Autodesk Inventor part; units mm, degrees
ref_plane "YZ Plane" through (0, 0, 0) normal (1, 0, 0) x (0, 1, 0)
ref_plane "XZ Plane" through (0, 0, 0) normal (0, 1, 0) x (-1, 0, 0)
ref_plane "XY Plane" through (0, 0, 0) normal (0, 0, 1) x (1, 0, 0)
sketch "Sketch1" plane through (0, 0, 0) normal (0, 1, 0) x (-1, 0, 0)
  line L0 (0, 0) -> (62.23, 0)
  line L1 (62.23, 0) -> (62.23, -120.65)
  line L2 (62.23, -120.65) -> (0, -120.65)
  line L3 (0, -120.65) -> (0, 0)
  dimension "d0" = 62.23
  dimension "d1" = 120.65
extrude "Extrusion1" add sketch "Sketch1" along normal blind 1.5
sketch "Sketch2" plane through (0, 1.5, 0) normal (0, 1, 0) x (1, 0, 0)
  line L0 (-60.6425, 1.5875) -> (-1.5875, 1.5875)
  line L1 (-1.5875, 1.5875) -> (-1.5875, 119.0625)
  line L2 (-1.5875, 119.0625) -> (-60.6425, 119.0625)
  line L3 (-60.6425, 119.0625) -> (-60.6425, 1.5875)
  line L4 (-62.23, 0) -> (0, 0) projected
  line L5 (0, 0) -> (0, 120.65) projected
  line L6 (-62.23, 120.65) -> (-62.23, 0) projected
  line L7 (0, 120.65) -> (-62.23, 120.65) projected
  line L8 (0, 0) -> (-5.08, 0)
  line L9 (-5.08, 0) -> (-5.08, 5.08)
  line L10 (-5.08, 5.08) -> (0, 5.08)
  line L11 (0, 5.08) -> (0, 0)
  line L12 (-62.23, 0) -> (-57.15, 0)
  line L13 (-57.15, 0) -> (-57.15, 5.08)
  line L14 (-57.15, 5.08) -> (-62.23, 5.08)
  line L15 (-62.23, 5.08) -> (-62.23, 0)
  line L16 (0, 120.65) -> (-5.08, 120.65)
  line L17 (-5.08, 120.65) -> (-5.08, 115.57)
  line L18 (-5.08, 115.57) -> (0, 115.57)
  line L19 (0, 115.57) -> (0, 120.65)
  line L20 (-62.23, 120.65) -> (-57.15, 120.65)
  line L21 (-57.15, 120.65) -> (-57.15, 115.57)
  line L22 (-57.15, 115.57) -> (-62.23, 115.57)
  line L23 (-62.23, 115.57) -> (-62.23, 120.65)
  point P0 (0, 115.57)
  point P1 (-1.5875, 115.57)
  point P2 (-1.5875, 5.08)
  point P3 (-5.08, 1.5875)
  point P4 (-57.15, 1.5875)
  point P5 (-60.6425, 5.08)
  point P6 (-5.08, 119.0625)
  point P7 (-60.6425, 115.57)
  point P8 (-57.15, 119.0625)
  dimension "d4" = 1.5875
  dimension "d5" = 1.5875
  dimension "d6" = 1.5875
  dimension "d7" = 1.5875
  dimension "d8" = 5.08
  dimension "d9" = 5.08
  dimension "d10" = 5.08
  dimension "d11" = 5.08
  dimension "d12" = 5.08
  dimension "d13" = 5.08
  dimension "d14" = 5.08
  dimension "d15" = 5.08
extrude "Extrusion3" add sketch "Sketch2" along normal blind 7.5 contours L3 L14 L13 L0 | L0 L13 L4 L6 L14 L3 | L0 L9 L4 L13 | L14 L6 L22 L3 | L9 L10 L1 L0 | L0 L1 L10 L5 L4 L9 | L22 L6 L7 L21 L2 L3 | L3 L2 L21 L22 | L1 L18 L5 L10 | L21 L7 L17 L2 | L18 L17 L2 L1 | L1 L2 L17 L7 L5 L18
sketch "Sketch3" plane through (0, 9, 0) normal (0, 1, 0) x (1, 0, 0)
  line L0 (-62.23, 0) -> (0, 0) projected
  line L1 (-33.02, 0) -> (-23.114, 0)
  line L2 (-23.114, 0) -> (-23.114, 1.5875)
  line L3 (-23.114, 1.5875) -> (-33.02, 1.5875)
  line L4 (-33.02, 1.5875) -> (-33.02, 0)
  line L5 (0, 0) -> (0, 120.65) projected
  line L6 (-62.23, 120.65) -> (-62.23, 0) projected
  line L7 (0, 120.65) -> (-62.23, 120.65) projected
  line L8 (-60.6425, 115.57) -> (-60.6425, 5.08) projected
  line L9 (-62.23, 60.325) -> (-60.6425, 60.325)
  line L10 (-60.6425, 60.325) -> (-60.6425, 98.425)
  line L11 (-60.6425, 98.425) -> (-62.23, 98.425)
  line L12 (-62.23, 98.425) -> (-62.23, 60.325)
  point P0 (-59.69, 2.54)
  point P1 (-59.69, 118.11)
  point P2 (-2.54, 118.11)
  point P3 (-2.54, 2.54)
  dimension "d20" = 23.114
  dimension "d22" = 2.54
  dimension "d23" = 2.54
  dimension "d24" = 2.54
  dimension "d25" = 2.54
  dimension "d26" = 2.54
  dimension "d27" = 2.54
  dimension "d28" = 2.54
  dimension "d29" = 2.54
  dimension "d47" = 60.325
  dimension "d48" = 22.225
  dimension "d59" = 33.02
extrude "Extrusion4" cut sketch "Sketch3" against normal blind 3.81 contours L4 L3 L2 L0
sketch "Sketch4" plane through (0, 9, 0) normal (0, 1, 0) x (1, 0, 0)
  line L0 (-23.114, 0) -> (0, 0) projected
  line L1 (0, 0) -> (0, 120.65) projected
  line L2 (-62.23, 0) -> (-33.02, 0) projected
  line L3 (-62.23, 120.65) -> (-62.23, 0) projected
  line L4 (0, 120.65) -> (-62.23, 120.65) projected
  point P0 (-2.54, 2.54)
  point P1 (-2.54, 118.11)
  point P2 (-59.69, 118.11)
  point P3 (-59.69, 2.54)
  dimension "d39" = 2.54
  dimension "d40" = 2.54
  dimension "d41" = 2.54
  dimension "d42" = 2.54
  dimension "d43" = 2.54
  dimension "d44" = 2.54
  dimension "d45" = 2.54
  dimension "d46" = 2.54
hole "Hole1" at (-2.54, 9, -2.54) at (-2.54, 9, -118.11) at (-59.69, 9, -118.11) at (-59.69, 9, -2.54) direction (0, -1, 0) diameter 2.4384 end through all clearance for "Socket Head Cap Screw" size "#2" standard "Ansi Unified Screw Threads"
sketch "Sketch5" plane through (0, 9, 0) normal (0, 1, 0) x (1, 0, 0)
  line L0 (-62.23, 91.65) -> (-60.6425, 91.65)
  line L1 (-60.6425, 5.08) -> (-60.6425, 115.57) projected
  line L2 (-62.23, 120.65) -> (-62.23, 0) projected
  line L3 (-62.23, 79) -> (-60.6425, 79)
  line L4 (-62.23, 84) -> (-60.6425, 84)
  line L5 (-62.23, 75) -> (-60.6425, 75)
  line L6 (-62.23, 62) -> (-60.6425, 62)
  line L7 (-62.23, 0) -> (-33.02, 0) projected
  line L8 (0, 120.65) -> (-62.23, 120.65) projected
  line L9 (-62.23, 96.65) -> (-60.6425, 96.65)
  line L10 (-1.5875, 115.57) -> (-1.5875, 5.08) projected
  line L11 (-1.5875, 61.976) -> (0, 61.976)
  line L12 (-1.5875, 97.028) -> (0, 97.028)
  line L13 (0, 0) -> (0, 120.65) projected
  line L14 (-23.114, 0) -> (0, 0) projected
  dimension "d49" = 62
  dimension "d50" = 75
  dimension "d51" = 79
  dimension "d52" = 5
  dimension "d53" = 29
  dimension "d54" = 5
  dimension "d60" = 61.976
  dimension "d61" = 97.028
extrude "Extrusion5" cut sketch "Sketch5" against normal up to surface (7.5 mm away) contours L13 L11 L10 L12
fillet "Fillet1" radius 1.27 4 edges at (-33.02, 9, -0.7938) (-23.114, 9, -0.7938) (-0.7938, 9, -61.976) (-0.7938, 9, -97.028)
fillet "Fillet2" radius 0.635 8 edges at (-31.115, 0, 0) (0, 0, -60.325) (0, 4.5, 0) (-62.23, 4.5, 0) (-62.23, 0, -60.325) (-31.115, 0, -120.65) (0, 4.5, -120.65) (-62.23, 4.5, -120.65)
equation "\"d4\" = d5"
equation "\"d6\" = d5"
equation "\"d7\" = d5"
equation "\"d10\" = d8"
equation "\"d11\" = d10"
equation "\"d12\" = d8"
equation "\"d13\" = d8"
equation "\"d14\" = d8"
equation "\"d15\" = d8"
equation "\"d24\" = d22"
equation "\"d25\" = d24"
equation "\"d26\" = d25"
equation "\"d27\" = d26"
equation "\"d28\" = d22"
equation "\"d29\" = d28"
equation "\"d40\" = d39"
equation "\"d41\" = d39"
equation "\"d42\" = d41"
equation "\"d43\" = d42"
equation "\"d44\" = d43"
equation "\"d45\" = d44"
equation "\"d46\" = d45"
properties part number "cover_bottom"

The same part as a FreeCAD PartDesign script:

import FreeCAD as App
import Part
import Sketcher
Q = App.Units.Quantity


def edges_at(feature, points):
    """Names of the edges that pass closest to the given points."""
    edges = feature.Shape.Edges
    near = lambda p: min(range(len(edges)), key=lambda i: edges[i].distToShape(Part.Vertex(*p))[0])
    return sorted({f"Edge{near(p) + 1}" for p in points})

doc = App.newDocument("Part")
body = doc.addObject("PartDesign::Body", "Body")

sketch1 = body.newObject("Sketcher::SketchObject", "Sketch")
sketch1.AttachmentSupport = (doc.getObject("XZ_Plane"), [""])
sketch1.MapMode = "FlatFace"
sketch1.addGeometry([
    Part.LineSegment(App.Vector(-62.23, 0, 0), App.Vector(0, 0, 0)),
    Part.LineSegment(App.Vector(0, 0, 0), App.Vector(0, -120.65, 0)),
    Part.LineSegment(App.Vector(0, -120.65, 0), App.Vector(-62.23, -120.65, 0)),
    Part.LineSegment(App.Vector(-62.23, -120.65, 0), App.Vector(-62.23, 0, 0)),
], False)
sketch1.addConstraint([
    Sketcher.Constraint("Coincident", 0, 2, 1, 1),
    Sketcher.Constraint("Coincident", 1, 2, 2, 1),
    Sketcher.Constraint("Coincident", 2, 2, 3, 1),
    Sketcher.Constraint("Coincident", 3, 2, 0, 1),
    Sketcher.Constraint("Horizontal", 0),
    Sketcher.Constraint("Vertical", 1),
    Sketcher.Constraint("Horizontal", 2),
    Sketcher.Constraint("Vertical", 3),
    Sketcher.Constraint("Coincident", 0, 2, -1, 1),
    Sketcher.Constraint("DistanceX", 0, 1, 0, 2, Q("2.45 in")),
    Sketcher.Constraint("DistanceY", 1, 2, 1, 1, Q("4.75 in")),
])
pad1 = body.newObject("PartDesign::Pad", "Pad")
pad1.Profile = sketch1
pad1.Length = 1.5
pad1.Reversed = True

sketch2 = body.newObject("Sketcher::SketchObject", "Sketch001")
sketch2.AttachmentSupport = (doc.getObject("XZ_Plane"), [""])
sketch2.MapMode = "FlatFace"
sketch2.AttachmentOffset = App.Placement(App.Vector(0, 0, -1.5), App.Rotation())
sketch2.addGeometry([
    Part.LineSegment(App.Vector(-62.23, 0, 0), App.Vector(0, 0, 0)),
    Part.LineSegment(App.Vector(0, 0, 0), App.Vector(0, -120.65, 0)),
    Part.LineSegment(App.Vector(0, -120.65, 0), App.Vector(-62.23, -120.65, 0)),
    Part.LineSegment(App.Vector(-62.23, -120.65, 0), App.Vector(-62.23, 0, 0)),
    Part.LineSegment(App.Vector(-57.15, -5.08, 0), App.Vector(-60.6425, -5.08, 0)),
    Part.LineSegment(App.Vector(-60.6425, -5.08, 0), App.Vector(-60.6425, -115.57, 0)),
    Part.LineSegment(App.Vector(-60.6425, -115.57, 0), App.Vector(-57.15, -115.57, 0)),
    Part.LineSegment(App.Vector(-57.15, -115.57, 0), App.Vector(-57.15, -119.0625, 0)),
    Part.LineSegment(App.Vector(-57.15, -119.0625, 0), App.Vector(-5.08, -119.0625, 0)),
    Part.LineSegment(App.Vector(-5.08, -119.0625, 0), App.Vector(-5.08, -115.57, 0)),
    Part.LineSegment(App.Vector(-5.08, -115.57, 0), App.Vector(-1.5875, -115.57, 0)),
    Part.LineSegment(App.Vector(-1.5875, -115.57, 0), App.Vector(-1.5875, -5.08, 0)),
    Part.LineSegment(App.Vector(-1.5875, -5.08, 0), App.Vector(-5.08, -5.08, 0)),
    Part.LineSegment(App.Vector(-5.08, -5.08, 0), App.Vector(-5.08, -1.5875, 0)),
    Part.LineSegment(App.Vector(-5.08, -1.5875, 0), App.Vector(-57.15, -1.5875, 0)),
    Part.LineSegment(App.Vector(-57.15, -1.5875, 0), App.Vector(-57.15, -5.08, 0)),
], False)
sketch2.addConstraint([
    Sketcher.Constraint("Coincident", 0, 2, 1, 1),
    Sketcher.Constraint("Coincident", 1, 2, 2, 1),
    Sketcher.Constraint("Coincident", 2, 2, 3, 1),
    Sketcher.Constraint("Coincident", 3, 2, 0, 1),
    Sketcher.Constraint("Coincident", 4, 2, 5, 1),
    Sketcher.Constraint("Coincident", 5, 2, 6, 1),
    Sketcher.Constraint("Coincident", 6, 2, 7, 1),
    Sketcher.Constraint("Coincident", 7, 2, 8, 1),
    Sketcher.Constraint("Coincident", 8, 2, 9, 1),
    Sketcher.Constraint("Coincident", 9, 2, 10, 1),
    Sketcher.Constraint("Coincident", 10, 2, 11, 1),
    Sketcher.Constraint("Coincident", 11, 2, 12, 1),
    Sketcher.Constraint("Coincident", 12, 2, 13, 1),
    Sketcher.Constraint("Coincident", 13, 2, 14, 1),
    Sketcher.Constraint("Coincident", 14, 2, 15, 1),
    Sketcher.Constraint("Coincident", 15, 2, 4, 1),
    Sketcher.Constraint("Horizontal", 0),
    Sketcher.Constraint("Vertical", 1),
    Sketcher.Constraint("Horizontal", 2),
    Sketcher.Constraint("Vertical", 3),
    Sketcher.Constraint("Horizontal", 4),
    Sketcher.Constraint("Vertical", 5),
    Sketcher.Constraint("Horizontal", 6),
    Sketcher.Constraint("Vertical", 7),
    Sketcher.Constraint("Horizontal", 8),
    Sketcher.Constraint("Vertical", 9),
    Sketcher.Constraint("Horizontal", 10),
    Sketcher.Constraint("Vertical", 11),
    Sketcher.Constraint("Horizontal", 12),
    Sketcher.Constraint("Vertical", 13),
    Sketcher.Constraint("Horizontal", 14),
    Sketcher.Constraint("Vertical", 15),
    Sketcher.Constraint("Coincident", 0, 2, -1, 1),
    Sketcher.Constraint("Horizontal", 6, 2, 9, 2),
    Sketcher.Constraint("Horizontal", 4, 2, 11, 2),
    Sketcher.Constraint("Vertical", 9, 2, 12, 2),
    Sketcher.Constraint("Vertical", 7, 2, 14, 2),
    Sketcher.Constraint("Equal", 6, 10),
    Sketcher.Constraint("Equal", 12, 7),
    Sketcher.Constraint("Equal", 9, 13),
    Sketcher.Constraint("DistanceY", 4, 2, -1, 1, Q("0.2 in")),
    Sketcher.Constraint("DistanceX", 8, 2, -1, 1, Q("0.2 in")),
    Sketcher.Constraint("DistanceY", 2, 2, 5, 2, Q("0.2 in")),
    Sketcher.Constraint("DistanceX", 2, 2, 6, 2, Q("0.2 in")),
    Sketcher.Constraint("DistanceX", 10, 2, -1, 1, Q("0.0625 in")),
    Sketcher.Constraint("DistanceX", 0, 1, 0, 2, Q("2.45 in")),
    Sketcher.Constraint("DistanceY", 1, 2, 1, 1, Q("4.75 in")),
])
pad2 = body.newObject("PartDesign::Pad", "Pad001")
pad2.Profile = sketch2
pad2.Length = 7.5
pad2.Reversed = True

sketch3 = body.newObject("Sketcher::SketchObject", "Sketch002")
sketch3.AttachmentSupport = (doc.getObject("XZ_Plane"), [""])
sketch3.MapMode = "FlatFace"
sketch3.AttachmentOffset = App.Placement(App.Vector(0, 0, -9), App.Rotation())
sketch3.addGeometry([
    Part.LineSegment(App.Vector(-33.02, -1.5875, 0), App.Vector(-33.02, 0, 0)),
    Part.LineSegment(App.Vector(-33.02, 0, 0), App.Vector(-23.114, 0, 0)),
    Part.LineSegment(App.Vector(-23.114, 0, 0), App.Vector(-23.114, -1.5875, 0)),
    Part.LineSegment(App.Vector(-23.114, -1.5875, 0), App.Vector(-33.02, -1.5875, 0)),
], False)
sketch3.addConstraint([
    Sketcher.Constraint("Coincident", 0, 2, 1, 1),
    Sketcher.Constraint("Coincident", 1, 2, 2, 1),
    Sketcher.Constraint("Coincident", 2, 2, 3, 1),
    Sketcher.Constraint("Coincident", 3, 2, 0, 1),
    Sketcher.Constraint("Vertical", 0),
    Sketcher.Constraint("Horizontal", 1),
    Sketcher.Constraint("Vertical", 2),
    Sketcher.Constraint("Horizontal", 3),
    Sketcher.Constraint("PointOnObject", 0, 2, -1),
    Sketcher.Constraint("DistanceX", 0, 2, -1, 1, Q("1.3 in")),
    Sketcher.Constraint("DistanceX", 1, 2, -1, 1, Q("0.91 in")),
    Sketcher.Constraint("DistanceY", 0, 1, 0, 2, Q("0.0625 in")),
])
pocket1 = body.newObject("PartDesign::Pocket", "Pocket")
pocket1.Profile = sketch3
pocket1.Length = Q("0.15 in")
pocket1.Reversed = True

sketch4 = body.newObject("Sketcher::SketchObject", "Sketch003")
sketch4.AttachmentSupport = (doc.getObject("XZ_Plane"), [""])
sketch4.MapMode = "FlatFace"
sketch4.AttachmentOffset = App.Placement(App.Vector(0, 0, -9), App.Rotation())
sketch4.addGeometry([
    Part.Circle(App.Vector(-2.54, -2.54, 0), App.Vector(0, 0, 1), 1.2192),
    Part.Circle(App.Vector(-2.54, -118.11, 0), App.Vector(0, 0, 1), 1.2192),
    Part.Circle(App.Vector(-59.69, -118.11, 0), App.Vector(0, 0, 1), 1.2192),
    Part.Circle(App.Vector(-59.69, -2.54, 0), App.Vector(0, 0, 1), 1.2192),
], False)
sketch4.addConstraint([
    Sketcher.Constraint("Equal", 0, 1),
    Sketcher.Constraint("Equal", 1, 2),
    Sketcher.Constraint("Equal", 2, 3),
    Sketcher.Constraint("Horizontal", 1, 3, 2, 3),
    Sketcher.Constraint("Horizontal", 0, 3, 3, 3),
    Sketcher.Constraint("Vertical", 0, 3, 1, 3),
    Sketcher.Constraint("Vertical", 2, 3, 3, 3),
    Sketcher.Constraint("Diameter", 0, Q("0.096 in")),
    Sketcher.Constraint("DistanceX", 0, 3, -1, 1, Q("0.1 in")),
    Sketcher.Constraint("DistanceY", 0, 3, -1, 1, Q("0.1 in")),
    Sketcher.Constraint("DistanceY", 1, 3, -1, 1, Q("4.65 in")),
    Sketcher.Constraint("DistanceX", 2, 3, -1, 1, Q("2.35 in")),
])
doc.recompute()
hole = body.newObject("PartDesign::Hole", "Hole")
hole.Profile = sketch4
hole.ThreadType = "None"
hole.Diameter = Q("0.096 in")
hole.DepthType = "ThroughAll"
hole.Reversed = True

sketch5 = body.newObject("Sketcher::SketchObject", "Sketch004")
sketch5.AttachmentSupport = (doc.getObject("XZ_Plane"), [""])
sketch5.MapMode = "FlatFace"
sketch5.AttachmentOffset = App.Placement(App.Vector(0, 0, -9), App.Rotation())
sketch5.addGeometry([
    Part.LineSegment(App.Vector(0, -61.976, 0), App.Vector(0, -97.028, 0)),
    Part.LineSegment(App.Vector(0, -97.028, 0), App.Vector(-1.5875, -97.028, 0)),
    Part.LineSegment(App.Vector(-1.5875, -97.028, 0), App.Vector(-1.5875, -61.976, 0)),
    Part.LineSegment(App.Vector(-1.5875, -61.976, 0), App.Vector(0, -61.976, 0)),
], False)
sketch5.addConstraint([
    Sketcher.Constraint("Coincident", 0, 2, 1, 1),
    Sketcher.Constraint("Coincident", 1, 2, 2, 1),
    Sketcher.Constraint("Coincident", 2, 2, 3, 1),
    Sketcher.Constraint("Coincident", 3, 2, 0, 1),
    Sketcher.Constraint("Vertical", 0),
    Sketcher.Constraint("Horizontal", 1),
    Sketcher.Constraint("Vertical", 2),
    Sketcher.Constraint("Horizontal", 3),
    Sketcher.Constraint("PointOnObject", 0, 2, -2),
    Sketcher.Constraint("DistanceY", 0, 2, -1, 1, Q("3.82 in")),
    Sketcher.Constraint("DistanceY", 2, 2, -1, 1, Q("2.44 in")),
    Sketcher.Constraint("DistanceX", 1, 2, 1, 1, Q("0.0625 in")),
])
pocket2 = body.newObject("PartDesign::Pocket", "Pocket001")
pocket2.Profile = sketch5
pocket2.Length = 7.5
pocket2.Reversed = True
doc.recompute()

fillet = body.newObject("PartDesign::Fillet", "Fillet")
fillet.Base = (pocket2, edges_at(pocket2, [
    (-33.02, 9, -0.794),
    (-23.114, 9, -0.794),
    (-0.794, 9, -61.976),
    (-0.794, 9, -97.028),
]))
fillet.Radius = Q("0.05 in")
doc.recompute()

fillet2 = body.newObject("PartDesign::Fillet", "Fillet001")
fillet2.Base = (fillet, edges_at(fillet, [
    (-31.115, 0, 0),
    (0, 0, -60.325),
    (0, 4.5, 0),
    (-62.23, 4.5, 0),
    (-62.23, 0, -60.325),
    (-31.115, 0, -120.65),
    (0, 4.5, -120.65),
    (-62.23, 4.5, -120.65),
]))
fillet2.Radius = Q("0.025 in")

doc.recompute()
